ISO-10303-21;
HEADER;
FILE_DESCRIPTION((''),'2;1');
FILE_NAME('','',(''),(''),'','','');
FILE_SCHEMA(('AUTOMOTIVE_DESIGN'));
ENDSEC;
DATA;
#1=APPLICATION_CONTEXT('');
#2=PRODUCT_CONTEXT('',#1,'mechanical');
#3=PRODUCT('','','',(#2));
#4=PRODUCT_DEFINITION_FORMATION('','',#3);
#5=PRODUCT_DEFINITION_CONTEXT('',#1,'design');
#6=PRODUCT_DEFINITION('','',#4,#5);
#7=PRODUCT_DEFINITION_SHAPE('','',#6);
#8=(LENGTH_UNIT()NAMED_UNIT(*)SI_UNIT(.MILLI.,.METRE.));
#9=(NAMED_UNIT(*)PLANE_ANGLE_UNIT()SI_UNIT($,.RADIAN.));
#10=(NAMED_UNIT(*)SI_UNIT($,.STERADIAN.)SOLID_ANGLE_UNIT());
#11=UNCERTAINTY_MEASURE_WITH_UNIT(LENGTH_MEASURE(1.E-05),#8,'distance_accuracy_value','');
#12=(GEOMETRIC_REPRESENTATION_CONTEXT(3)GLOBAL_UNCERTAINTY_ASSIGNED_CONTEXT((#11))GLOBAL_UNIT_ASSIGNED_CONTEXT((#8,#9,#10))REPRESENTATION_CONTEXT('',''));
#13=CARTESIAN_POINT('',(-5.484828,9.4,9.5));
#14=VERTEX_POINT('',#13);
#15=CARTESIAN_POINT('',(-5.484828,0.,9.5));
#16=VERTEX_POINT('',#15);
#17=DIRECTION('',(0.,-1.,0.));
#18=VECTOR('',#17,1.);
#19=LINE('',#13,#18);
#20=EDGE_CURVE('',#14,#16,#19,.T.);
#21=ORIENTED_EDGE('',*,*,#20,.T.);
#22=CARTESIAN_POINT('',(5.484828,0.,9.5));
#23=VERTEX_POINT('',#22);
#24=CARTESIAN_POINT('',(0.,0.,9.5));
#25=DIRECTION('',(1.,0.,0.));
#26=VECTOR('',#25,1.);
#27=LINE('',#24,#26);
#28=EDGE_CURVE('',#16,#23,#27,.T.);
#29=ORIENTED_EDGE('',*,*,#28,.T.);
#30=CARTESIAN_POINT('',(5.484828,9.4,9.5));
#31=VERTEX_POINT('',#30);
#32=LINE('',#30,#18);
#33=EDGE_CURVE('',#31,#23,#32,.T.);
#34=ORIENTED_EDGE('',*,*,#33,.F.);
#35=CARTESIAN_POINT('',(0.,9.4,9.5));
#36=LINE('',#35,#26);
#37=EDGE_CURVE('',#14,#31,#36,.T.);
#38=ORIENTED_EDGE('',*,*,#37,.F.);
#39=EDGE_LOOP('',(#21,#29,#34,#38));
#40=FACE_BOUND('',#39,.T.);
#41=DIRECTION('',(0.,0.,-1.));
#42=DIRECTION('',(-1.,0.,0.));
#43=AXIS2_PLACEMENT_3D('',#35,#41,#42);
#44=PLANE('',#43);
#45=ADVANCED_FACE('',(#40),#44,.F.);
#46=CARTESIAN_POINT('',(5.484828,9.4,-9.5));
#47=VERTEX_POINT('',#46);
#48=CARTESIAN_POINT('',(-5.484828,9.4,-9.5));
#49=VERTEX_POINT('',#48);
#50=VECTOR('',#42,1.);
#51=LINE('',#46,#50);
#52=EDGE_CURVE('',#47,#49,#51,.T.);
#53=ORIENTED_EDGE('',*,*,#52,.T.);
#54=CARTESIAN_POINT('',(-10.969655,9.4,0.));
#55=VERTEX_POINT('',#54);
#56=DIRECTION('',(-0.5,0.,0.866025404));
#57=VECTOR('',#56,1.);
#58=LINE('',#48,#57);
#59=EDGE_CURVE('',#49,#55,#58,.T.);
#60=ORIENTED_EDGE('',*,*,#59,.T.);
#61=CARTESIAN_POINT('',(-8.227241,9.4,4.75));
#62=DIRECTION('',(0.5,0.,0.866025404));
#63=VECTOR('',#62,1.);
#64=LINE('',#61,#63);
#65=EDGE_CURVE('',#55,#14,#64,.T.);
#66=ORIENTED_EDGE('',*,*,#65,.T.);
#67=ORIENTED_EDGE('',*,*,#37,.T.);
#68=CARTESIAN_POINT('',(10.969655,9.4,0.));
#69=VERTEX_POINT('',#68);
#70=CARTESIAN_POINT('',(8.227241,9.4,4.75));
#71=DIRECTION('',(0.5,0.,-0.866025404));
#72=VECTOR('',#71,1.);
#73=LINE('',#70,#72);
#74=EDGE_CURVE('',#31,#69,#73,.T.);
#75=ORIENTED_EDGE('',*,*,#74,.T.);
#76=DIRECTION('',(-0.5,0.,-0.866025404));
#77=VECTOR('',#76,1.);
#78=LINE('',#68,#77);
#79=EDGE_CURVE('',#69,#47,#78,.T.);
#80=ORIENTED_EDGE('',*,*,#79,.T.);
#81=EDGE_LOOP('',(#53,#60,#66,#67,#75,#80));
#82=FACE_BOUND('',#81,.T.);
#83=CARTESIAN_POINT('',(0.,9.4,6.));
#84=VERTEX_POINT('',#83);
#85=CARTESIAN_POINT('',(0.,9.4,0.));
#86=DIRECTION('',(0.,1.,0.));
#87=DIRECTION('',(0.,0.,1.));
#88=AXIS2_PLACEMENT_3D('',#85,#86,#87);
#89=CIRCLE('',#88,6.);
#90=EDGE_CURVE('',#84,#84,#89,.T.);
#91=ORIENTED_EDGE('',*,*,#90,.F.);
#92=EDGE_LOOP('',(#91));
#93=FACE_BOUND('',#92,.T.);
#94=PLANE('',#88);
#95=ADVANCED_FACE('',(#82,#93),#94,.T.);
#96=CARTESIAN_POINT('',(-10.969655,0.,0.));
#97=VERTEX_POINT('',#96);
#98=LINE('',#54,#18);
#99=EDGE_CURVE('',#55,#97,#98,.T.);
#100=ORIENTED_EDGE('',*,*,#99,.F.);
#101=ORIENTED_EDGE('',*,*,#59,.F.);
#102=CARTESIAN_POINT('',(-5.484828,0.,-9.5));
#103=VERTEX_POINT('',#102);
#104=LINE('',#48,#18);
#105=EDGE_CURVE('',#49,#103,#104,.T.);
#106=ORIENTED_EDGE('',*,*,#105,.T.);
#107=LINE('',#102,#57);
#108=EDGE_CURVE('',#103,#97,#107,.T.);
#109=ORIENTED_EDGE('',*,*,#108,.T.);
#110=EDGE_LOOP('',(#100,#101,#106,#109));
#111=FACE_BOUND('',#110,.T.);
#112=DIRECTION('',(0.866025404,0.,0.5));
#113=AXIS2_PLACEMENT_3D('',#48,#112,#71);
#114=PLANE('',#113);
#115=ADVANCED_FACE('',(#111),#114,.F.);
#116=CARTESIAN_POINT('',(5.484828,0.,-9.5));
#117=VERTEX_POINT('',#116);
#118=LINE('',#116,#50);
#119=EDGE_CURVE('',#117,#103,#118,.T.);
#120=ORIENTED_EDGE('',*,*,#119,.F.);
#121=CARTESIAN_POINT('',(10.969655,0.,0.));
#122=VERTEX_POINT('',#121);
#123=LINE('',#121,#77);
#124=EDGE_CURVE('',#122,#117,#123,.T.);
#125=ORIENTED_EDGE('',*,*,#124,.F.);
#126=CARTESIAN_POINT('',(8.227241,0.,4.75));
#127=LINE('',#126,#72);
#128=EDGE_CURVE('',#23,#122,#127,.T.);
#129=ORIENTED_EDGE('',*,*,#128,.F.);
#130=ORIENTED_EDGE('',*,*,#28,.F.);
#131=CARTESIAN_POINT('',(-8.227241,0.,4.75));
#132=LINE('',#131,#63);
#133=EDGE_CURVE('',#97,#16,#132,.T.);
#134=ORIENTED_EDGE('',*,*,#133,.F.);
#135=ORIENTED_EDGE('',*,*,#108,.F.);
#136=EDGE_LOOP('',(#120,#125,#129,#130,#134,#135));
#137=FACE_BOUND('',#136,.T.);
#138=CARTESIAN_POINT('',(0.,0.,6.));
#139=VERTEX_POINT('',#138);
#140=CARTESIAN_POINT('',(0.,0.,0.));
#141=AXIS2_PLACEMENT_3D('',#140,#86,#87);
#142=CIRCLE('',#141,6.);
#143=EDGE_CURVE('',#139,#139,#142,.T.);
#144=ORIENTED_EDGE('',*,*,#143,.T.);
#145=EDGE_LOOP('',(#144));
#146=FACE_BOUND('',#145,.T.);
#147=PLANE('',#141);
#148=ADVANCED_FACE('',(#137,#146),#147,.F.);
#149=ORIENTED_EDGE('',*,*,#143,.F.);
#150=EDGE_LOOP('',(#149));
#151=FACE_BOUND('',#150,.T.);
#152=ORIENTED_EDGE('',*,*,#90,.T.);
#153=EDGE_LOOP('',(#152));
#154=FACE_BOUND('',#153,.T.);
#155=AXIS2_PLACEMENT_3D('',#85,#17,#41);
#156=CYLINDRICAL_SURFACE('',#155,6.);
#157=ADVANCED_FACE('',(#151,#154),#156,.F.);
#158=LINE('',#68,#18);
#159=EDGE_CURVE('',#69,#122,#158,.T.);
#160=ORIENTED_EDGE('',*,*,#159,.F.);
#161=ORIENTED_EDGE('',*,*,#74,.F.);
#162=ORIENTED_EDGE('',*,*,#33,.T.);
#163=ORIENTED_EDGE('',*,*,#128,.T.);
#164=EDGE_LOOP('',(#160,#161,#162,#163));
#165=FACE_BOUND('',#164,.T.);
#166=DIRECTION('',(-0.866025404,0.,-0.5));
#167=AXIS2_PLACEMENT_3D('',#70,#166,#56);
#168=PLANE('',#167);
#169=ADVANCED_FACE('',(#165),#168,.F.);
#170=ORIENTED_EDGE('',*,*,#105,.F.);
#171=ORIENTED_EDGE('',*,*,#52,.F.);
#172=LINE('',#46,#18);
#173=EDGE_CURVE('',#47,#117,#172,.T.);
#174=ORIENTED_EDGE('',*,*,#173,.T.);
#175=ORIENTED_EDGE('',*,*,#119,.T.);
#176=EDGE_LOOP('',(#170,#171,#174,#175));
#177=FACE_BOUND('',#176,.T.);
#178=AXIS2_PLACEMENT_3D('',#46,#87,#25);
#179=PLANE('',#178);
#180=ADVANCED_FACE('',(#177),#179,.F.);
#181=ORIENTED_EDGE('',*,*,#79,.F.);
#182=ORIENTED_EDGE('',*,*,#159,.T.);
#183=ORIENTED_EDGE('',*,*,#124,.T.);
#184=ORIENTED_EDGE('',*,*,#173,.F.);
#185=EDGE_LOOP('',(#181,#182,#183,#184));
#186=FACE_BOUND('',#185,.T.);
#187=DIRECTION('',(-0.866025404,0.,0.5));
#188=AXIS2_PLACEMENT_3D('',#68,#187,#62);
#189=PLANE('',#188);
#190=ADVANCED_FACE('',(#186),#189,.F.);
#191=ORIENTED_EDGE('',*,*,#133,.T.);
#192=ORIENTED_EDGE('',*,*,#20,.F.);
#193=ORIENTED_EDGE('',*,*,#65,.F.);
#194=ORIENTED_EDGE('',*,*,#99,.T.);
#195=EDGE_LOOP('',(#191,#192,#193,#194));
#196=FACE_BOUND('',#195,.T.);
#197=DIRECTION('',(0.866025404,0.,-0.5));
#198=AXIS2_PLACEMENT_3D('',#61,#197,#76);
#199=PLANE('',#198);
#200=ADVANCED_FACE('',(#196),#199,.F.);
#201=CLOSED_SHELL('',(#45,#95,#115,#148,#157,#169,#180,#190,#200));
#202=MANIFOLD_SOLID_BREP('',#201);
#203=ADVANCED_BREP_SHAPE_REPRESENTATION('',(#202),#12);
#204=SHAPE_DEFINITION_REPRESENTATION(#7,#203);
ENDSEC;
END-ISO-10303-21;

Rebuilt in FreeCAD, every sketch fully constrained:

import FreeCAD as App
import Part
import Sketcher

V = App.Vector
Q = App.Units.Quantity


def add_polygon(sketch, points):
    """Adds a closed chain of lines whose ends are joined by coincident constraints."""
    first, n = sketch.GeometryCount, len(points)
    for a, b in zip(points, points[1:] + points[:1]):
        sketch.addGeometry(Part.LineSegment(App.Vector(*a, 0), App.Vector(*b, 0)), False)
    for i in range(n):
        sketch.addConstraint(Sketcher.Constraint("Coincident", first + i, 2, first + (i + 1) % n, 1))

doc = App.newDocument("Part")
params = doc.addObject("Spreadsheet::Sheet", "Params")
for row, (alias, value) in enumerate([
    ("sketch1_diameter", "12 mm"),
    ("pad1_length", "9.4 mm"),
], start=1):
    params.set(f"A{row}", alias)
    params.set(f"B{row}", "=" + value)
    params.setAlias(f"B{row}", alias)

body = doc.addObject("PartDesign::Body", "Body")

# Sketch on XZ plane
sketch1 = body.newObject("Sketcher::SketchObject", "Sketch")
sketch1.AttachmentSupport = (doc.getObject("XZ_Plane"), [""])
sketch1.MapMode = "FlatFace"
add_polygon(sketch1, [(5, -10), (-5, -10), (-11, 0), (-5, 10), (5, 10), (11, 0)])  # lines 0-5
sketch1.addGeometry(Part.Circle(V(0, 0, 0), V(0, 0, 1), 6), False)  # 6
sketch1.addConstraint([
    Sketcher.Constraint("Horizontal", 0),
    Sketcher.Constraint("Horizontal", 3),
    Sketcher.Constraint("Coincident", 6, 3, -1, 1),
    Sketcher.Constraint("Symmetric", 0, 2, 3, 2, -1, 1),
    Sketcher.Constraint("Symmetric", 1, 2, 4, 2, -1, 1),
    Sketcher.Constraint("PointOnObject", 1, 2, -1),
    Sketcher.Constraint("Parallel", 2, 5),
    Sketcher.Constraint("Vertical", 0, 2, 2, 2),
    Sketcher.Constraint("Diameter", 6, Q("12 mm")),
    Sketcher.Constraint("Angle", 1, Q("120 deg")),
    Sketcher.Constraint("DistanceY", 0, 2, 2, 2, Q("19 mm")),
    Sketcher.Constraint("DistanceX", 0, 2, 0, 1, Q("10.969655 mm")),
])
sketch1.setExpression("Constraints[14]", "Params.sketch1_diameter")
pad1 = body.newObject("PartDesign::Pad", "Pad")
pad1.Profile = sketch1
pad1.setExpression("Length", "Params.pad1_length")
pad1.Reversed = True

doc.recompute()
